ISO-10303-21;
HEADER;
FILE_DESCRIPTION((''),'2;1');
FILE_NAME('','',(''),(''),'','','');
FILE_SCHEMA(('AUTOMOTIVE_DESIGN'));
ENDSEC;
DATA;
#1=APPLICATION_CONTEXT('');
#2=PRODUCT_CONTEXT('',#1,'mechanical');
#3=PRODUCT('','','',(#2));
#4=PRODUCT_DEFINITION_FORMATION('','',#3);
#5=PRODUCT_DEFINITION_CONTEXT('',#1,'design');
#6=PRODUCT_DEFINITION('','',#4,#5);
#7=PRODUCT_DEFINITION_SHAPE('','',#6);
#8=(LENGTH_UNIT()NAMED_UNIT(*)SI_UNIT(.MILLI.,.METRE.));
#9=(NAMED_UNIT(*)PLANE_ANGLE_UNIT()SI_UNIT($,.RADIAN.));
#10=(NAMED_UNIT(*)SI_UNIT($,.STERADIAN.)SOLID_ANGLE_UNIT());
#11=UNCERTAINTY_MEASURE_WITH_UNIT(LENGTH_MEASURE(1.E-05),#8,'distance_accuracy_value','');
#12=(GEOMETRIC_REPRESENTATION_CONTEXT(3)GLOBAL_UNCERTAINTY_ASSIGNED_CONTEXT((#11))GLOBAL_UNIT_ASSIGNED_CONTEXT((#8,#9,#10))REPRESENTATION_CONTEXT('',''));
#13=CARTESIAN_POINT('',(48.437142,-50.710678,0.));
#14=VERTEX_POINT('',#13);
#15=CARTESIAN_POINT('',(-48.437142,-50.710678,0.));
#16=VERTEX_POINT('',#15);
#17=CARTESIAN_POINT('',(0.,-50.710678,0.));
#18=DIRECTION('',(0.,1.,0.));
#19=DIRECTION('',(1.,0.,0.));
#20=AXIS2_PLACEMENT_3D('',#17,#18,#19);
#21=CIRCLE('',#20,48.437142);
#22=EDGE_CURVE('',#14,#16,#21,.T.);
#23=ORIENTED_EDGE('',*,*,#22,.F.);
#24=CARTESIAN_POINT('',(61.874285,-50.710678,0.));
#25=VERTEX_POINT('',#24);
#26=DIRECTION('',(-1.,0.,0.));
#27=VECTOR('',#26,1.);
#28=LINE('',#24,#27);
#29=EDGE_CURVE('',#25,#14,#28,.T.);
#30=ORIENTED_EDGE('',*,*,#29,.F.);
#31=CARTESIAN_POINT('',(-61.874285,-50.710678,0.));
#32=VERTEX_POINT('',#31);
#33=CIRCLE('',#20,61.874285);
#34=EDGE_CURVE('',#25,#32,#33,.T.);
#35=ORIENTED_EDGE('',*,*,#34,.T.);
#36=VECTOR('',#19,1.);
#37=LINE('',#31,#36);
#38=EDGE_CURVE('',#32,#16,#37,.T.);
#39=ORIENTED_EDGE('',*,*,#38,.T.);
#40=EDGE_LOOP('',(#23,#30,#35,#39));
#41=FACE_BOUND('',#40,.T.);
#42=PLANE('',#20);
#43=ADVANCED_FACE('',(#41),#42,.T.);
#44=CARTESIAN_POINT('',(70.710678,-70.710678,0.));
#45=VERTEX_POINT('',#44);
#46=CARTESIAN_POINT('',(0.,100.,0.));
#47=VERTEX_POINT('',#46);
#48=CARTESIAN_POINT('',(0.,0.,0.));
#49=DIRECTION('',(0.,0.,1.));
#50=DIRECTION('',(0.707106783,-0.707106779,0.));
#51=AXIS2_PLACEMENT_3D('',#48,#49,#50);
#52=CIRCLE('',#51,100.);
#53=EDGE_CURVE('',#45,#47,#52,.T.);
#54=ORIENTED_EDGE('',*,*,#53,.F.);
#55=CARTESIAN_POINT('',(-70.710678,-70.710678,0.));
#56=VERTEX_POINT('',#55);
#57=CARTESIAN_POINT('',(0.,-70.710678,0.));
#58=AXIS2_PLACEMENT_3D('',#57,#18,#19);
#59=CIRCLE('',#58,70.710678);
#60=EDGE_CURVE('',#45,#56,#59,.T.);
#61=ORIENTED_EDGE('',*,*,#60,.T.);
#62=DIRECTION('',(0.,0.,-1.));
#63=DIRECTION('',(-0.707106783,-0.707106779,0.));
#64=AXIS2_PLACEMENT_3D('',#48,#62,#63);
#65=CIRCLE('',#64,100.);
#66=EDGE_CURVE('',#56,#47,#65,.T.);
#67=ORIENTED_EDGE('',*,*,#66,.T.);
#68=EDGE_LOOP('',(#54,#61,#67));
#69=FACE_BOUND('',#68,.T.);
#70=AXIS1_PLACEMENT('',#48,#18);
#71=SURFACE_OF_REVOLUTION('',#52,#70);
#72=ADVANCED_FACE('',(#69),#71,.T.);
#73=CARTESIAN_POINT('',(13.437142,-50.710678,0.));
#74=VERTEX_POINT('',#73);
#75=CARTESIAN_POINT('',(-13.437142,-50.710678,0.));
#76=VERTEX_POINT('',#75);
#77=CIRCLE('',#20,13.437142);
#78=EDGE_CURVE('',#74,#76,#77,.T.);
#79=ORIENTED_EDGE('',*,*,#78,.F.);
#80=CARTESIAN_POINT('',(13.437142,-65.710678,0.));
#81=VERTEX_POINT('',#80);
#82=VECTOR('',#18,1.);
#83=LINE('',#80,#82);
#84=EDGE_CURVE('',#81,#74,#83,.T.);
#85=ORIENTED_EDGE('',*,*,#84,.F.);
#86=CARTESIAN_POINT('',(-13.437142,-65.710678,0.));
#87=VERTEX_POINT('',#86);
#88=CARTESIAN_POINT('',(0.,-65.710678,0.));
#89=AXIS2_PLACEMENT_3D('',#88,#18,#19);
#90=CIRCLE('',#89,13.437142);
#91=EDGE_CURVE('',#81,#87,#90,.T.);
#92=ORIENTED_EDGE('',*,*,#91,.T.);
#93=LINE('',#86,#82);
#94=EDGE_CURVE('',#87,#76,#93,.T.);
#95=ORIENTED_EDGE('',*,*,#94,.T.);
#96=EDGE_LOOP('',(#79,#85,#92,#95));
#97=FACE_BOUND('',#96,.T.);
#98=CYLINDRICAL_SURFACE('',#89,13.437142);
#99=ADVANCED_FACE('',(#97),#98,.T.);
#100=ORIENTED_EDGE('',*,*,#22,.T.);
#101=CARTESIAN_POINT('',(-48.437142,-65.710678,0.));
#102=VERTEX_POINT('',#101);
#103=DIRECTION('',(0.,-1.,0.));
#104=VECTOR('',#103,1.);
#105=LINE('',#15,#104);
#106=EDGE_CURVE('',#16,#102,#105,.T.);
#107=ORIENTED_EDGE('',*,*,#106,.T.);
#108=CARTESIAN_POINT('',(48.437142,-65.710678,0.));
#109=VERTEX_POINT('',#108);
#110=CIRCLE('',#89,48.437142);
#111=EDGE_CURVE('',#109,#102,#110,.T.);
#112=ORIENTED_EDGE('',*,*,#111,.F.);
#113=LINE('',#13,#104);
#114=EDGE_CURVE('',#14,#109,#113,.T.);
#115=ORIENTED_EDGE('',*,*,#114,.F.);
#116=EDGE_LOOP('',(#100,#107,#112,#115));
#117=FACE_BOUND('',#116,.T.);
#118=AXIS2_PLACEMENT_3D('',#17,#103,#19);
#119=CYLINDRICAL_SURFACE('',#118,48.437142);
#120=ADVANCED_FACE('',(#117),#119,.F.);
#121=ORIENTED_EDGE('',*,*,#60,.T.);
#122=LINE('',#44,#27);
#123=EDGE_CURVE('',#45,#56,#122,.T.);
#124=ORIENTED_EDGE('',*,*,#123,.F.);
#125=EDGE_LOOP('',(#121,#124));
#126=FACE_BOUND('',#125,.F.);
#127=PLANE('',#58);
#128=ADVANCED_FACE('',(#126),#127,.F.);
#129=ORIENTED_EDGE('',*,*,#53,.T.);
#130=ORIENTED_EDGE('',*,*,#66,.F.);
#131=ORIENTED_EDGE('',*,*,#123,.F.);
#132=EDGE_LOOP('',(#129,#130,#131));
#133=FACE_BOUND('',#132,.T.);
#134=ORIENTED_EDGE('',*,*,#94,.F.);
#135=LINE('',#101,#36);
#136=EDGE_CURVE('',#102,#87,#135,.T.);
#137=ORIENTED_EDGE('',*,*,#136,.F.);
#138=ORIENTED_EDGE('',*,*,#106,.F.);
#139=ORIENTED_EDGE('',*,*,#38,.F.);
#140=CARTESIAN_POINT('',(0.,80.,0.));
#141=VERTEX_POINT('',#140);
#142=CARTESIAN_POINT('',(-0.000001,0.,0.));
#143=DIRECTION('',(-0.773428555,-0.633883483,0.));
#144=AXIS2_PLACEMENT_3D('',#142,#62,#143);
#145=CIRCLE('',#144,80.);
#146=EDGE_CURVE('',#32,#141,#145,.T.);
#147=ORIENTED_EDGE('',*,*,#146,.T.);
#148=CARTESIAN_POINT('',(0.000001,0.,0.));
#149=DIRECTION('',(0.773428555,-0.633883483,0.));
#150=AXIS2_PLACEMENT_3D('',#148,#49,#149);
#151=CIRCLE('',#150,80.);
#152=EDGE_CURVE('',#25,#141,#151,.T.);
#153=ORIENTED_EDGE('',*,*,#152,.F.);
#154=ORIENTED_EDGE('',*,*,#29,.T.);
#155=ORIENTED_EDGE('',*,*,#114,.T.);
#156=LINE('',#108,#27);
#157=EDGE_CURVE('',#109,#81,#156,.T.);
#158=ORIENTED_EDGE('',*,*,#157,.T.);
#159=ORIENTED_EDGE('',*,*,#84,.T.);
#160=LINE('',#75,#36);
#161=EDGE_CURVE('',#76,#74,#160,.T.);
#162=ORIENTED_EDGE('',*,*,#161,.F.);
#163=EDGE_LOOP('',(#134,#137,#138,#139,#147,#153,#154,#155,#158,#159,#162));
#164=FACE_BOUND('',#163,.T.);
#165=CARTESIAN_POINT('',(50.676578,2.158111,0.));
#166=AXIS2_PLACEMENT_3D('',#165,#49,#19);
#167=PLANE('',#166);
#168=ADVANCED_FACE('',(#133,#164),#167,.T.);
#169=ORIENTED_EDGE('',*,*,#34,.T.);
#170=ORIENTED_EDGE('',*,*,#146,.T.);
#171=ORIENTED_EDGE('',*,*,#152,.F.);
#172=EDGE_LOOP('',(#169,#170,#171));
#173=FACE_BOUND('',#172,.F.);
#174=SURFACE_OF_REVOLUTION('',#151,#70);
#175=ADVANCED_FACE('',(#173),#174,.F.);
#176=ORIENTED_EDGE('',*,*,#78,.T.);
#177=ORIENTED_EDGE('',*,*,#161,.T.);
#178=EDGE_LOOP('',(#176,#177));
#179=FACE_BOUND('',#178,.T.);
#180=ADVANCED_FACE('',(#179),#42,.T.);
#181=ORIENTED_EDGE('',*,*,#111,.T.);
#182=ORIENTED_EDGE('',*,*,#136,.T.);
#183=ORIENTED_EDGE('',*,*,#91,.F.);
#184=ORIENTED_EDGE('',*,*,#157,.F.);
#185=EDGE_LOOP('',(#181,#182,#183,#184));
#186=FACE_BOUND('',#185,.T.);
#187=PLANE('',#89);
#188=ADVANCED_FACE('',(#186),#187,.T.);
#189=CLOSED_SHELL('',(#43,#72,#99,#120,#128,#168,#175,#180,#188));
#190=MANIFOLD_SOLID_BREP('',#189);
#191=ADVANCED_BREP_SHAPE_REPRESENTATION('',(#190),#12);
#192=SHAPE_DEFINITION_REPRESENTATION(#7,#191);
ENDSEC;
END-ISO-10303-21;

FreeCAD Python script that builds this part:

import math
import FreeCAD as App
import Part
import Sketcher
from FreeCAD import Vector

doc = App.newDocument("Part")
body = doc.addObject("PartDesign::Body", "Body")

# Sketch on XY plane
sketch1 = body.newObject("Sketcher::SketchObject", "Sketch")
sketch1.AttachmentSupport = (doc.getObject("XY_Plane"), [""])
sketch1.MapMode = "FlatFace"
sketch1.addGeometry(Part.ArcOfCircle(Part.Circle(Vector(0, 0, 0), Vector(0, 0, 1), 100), math.radians(-45), math.radians(90)), False)
sketch1.addGeometry(Part.LineSegment(Vector(0, 100, 0), Vector(0, 80, 0)), False)
sketch1.addGeometry(Part.ArcOfCircle(Part.Circle(Vector(0, 0, 0), Vector(0, 0, 1), 80), math.radians(-39), math.radians(90)), False)
sketch1.addGeometry(Part.LineSegment(Vector(62, -51, 0), Vector(48, -51, 0)), False)
sketch1.addGeometry(Part.LineSegment(Vector(48, -51, 0), Vector(48, -66, 0)), False)
sketch1.addGeometry(Part.LineSegment(Vector(48, -66, 0), Vector(13, -66, 0)), False)
sketch1.addGeometry(Part.LineSegment(Vector(13, -66, 0), Vector(13, -51, 0)), False)
sketch1.addGeometry(Part.LineSegment(Vector(13, -51, 0), Vector(0, -51, 0)), False)
sketch1.addGeometry(Part.LineSegment(Vector(0, -51, 0), Vector(0, -71, 0)), False)
sketch1.addGeometry(Part.LineSegment(Vector(0, -71, 0), Vector(71, -71, 0)), False)
sketch1.addConstraint(Sketcher.Constraint("Coincident", 0, 2, 1, 1))
sketch1.addConstraint(Sketcher.Constraint("Coincident", 1, 2, 2, 2))
sketch1.addConstraint(Sketcher.Constraint("Coincident", 2, 1, 3, 1))
sketch1.addConstraint(Sketcher.Constraint("Coincident", 3, 2, 4, 1))
sketch1.addConstraint(Sketcher.Constraint("Coincident", 4, 2, 5, 1))
sketch1.addConstraint(Sketcher.Constraint("Coincident", 5, 2, 6, 1))
sketch1.addConstraint(Sketcher.Constraint("Coincident", 6, 2, 7, 1))
sketch1.addConstraint(Sketcher.Constraint("Coincident", 7, 2, 8, 1))
sketch1.addConstraint(Sketcher.Constraint("Coincident", 8, 2, 9, 1))
sketch1.addConstraint(Sketcher.Constraint("Coincident", 9, 2, 0, 1))
sketch1.addConstraint(Sketcher.Constraint("Vertical", 1))
sketch1.addConstraint(Sketcher.Constraint("Horizontal", 3))
sketch1.addConstraint(Sketcher.Constraint("Vertical", 4))
sketch1.addConstraint(Sketcher.Constraint("Horizontal", 5))
sketch1.addConstraint(Sketcher.Constraint("Vertical", 6))
sketch1.addConstraint(Sketcher.Constraint("Horizontal", 7))
sketch1.addConstraint(Sketcher.Constraint("Vertical", 8))
sketch1.addConstraint(Sketcher.Constraint("Horizontal", 9))
sketch1.addConstraint(Sketcher.Constraint("Coincident", 0, 3, -1, 1))
sketch1.addConstraint(Sketcher.Constraint("Coincident", 2, 3, -1, 1))
sketch1.addConstraint(Sketcher.Constraint("PointOnObject", 0, 2, -2))
sketch1.addConstraint(Sketcher.Constraint("PointOnObject", 7, 2, -2))
sketch1.addConstraint(Sketcher.Constraint("Horizontal", 3, 2, 6, 2))
sketch1.addConstraint(Sketcher.Constraint("Equal", 3, 7))
sketch1.addConstraint(Sketcher.Constraint("Equal", 1, 8))
sketch1.addConstraint(Sketcher.Constraint("Radius", 0, 100.0))
sketch1.addConstraint(Sketcher.Constraint("Radius", 2, 80.0))
sketch1.addConstraint(Sketcher.Constraint("DistanceX", 5, 2, 5, 1, 35.0))
sketch1.addConstraint(Sketcher.Constraint("DistanceY", 4, 2, 4, 1, 15.0))
sketch1.addConstraint(Sketcher.Constraint("DistanceX", 9, 1, 9, 2, 70.710678))
revolution = body.newObject("PartDesign::Revolution", "Revolution")
revolution.Profile = sketch1
revolution.ReferenceAxis = (sketch1, ["V_Axis"])
revolution.Angle = 180

doc.recompute()
